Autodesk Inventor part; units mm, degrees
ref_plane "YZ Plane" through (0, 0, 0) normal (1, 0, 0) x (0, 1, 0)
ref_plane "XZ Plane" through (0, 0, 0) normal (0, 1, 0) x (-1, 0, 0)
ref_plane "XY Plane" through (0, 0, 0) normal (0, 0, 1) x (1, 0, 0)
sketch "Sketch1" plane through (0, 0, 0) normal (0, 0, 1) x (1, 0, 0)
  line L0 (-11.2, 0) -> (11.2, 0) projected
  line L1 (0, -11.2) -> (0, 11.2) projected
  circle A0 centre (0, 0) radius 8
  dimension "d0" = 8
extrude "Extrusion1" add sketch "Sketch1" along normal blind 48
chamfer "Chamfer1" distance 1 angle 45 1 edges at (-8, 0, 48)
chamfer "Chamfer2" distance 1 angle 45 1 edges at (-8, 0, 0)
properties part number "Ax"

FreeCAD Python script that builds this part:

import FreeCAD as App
import Part
import Sketcher
from FreeCAD import Vector


def edges_at(feature, points):
    """Names of the edges that pass closest to the given points."""
    edges = feature.Shape.Edges
    near = lambda p: min(range(len(edges)), key=lambda i: edges[i].distToShape(Part.Vertex(*p))[0])
    return sorted({f"Edge{near(p) + 1}" for p in points})

doc = App.newDocument("Part")
body = doc.addObject("PartDesign::Body", "Body")

# Sketch on XY plane
sketch1 = doc.addObject("Sketcher::SketchObject", "Sketch")
body.addObject(sketch1)
sketch1.AttachmentSupport = (doc.XY_Plane, [""])
sketch1.MapMode = "FlatFace"
sketch1.addGeometry(Part.Circle(Vector(0, 0, 0), Vector(0, 0, 1), 8), False)
sketch1.addConstraint(Sketcher.Constraint("Coincident", 0, 3, -1, 1))
sketch1.addConstraint(Sketcher.Constraint("Diameter", 0, 16.0))
pad1 = doc.addObject("PartDesign::Pad", "Pad")
body.addObject(pad1)
pad1.Profile = sketch1
pad1.Length = 48
doc.recompute()

chamfer = doc.addObject("PartDesign::Chamfer", "Chamfer")
body.addObject(chamfer)
chamfer.Base = (pad1, edges_at(pad1, [(-8, 0, 48)]))
chamfer.Size = 1
doc.recompute()

chamfer2 = doc.addObject("PartDesign::Chamfer", "Chamfer001")
body.addObject(chamfer2)
chamfer2.Base = (chamfer, edges_at(chamfer, [(-8, 0, 0)]))
chamfer2.Size = 1

doc.recompute()
